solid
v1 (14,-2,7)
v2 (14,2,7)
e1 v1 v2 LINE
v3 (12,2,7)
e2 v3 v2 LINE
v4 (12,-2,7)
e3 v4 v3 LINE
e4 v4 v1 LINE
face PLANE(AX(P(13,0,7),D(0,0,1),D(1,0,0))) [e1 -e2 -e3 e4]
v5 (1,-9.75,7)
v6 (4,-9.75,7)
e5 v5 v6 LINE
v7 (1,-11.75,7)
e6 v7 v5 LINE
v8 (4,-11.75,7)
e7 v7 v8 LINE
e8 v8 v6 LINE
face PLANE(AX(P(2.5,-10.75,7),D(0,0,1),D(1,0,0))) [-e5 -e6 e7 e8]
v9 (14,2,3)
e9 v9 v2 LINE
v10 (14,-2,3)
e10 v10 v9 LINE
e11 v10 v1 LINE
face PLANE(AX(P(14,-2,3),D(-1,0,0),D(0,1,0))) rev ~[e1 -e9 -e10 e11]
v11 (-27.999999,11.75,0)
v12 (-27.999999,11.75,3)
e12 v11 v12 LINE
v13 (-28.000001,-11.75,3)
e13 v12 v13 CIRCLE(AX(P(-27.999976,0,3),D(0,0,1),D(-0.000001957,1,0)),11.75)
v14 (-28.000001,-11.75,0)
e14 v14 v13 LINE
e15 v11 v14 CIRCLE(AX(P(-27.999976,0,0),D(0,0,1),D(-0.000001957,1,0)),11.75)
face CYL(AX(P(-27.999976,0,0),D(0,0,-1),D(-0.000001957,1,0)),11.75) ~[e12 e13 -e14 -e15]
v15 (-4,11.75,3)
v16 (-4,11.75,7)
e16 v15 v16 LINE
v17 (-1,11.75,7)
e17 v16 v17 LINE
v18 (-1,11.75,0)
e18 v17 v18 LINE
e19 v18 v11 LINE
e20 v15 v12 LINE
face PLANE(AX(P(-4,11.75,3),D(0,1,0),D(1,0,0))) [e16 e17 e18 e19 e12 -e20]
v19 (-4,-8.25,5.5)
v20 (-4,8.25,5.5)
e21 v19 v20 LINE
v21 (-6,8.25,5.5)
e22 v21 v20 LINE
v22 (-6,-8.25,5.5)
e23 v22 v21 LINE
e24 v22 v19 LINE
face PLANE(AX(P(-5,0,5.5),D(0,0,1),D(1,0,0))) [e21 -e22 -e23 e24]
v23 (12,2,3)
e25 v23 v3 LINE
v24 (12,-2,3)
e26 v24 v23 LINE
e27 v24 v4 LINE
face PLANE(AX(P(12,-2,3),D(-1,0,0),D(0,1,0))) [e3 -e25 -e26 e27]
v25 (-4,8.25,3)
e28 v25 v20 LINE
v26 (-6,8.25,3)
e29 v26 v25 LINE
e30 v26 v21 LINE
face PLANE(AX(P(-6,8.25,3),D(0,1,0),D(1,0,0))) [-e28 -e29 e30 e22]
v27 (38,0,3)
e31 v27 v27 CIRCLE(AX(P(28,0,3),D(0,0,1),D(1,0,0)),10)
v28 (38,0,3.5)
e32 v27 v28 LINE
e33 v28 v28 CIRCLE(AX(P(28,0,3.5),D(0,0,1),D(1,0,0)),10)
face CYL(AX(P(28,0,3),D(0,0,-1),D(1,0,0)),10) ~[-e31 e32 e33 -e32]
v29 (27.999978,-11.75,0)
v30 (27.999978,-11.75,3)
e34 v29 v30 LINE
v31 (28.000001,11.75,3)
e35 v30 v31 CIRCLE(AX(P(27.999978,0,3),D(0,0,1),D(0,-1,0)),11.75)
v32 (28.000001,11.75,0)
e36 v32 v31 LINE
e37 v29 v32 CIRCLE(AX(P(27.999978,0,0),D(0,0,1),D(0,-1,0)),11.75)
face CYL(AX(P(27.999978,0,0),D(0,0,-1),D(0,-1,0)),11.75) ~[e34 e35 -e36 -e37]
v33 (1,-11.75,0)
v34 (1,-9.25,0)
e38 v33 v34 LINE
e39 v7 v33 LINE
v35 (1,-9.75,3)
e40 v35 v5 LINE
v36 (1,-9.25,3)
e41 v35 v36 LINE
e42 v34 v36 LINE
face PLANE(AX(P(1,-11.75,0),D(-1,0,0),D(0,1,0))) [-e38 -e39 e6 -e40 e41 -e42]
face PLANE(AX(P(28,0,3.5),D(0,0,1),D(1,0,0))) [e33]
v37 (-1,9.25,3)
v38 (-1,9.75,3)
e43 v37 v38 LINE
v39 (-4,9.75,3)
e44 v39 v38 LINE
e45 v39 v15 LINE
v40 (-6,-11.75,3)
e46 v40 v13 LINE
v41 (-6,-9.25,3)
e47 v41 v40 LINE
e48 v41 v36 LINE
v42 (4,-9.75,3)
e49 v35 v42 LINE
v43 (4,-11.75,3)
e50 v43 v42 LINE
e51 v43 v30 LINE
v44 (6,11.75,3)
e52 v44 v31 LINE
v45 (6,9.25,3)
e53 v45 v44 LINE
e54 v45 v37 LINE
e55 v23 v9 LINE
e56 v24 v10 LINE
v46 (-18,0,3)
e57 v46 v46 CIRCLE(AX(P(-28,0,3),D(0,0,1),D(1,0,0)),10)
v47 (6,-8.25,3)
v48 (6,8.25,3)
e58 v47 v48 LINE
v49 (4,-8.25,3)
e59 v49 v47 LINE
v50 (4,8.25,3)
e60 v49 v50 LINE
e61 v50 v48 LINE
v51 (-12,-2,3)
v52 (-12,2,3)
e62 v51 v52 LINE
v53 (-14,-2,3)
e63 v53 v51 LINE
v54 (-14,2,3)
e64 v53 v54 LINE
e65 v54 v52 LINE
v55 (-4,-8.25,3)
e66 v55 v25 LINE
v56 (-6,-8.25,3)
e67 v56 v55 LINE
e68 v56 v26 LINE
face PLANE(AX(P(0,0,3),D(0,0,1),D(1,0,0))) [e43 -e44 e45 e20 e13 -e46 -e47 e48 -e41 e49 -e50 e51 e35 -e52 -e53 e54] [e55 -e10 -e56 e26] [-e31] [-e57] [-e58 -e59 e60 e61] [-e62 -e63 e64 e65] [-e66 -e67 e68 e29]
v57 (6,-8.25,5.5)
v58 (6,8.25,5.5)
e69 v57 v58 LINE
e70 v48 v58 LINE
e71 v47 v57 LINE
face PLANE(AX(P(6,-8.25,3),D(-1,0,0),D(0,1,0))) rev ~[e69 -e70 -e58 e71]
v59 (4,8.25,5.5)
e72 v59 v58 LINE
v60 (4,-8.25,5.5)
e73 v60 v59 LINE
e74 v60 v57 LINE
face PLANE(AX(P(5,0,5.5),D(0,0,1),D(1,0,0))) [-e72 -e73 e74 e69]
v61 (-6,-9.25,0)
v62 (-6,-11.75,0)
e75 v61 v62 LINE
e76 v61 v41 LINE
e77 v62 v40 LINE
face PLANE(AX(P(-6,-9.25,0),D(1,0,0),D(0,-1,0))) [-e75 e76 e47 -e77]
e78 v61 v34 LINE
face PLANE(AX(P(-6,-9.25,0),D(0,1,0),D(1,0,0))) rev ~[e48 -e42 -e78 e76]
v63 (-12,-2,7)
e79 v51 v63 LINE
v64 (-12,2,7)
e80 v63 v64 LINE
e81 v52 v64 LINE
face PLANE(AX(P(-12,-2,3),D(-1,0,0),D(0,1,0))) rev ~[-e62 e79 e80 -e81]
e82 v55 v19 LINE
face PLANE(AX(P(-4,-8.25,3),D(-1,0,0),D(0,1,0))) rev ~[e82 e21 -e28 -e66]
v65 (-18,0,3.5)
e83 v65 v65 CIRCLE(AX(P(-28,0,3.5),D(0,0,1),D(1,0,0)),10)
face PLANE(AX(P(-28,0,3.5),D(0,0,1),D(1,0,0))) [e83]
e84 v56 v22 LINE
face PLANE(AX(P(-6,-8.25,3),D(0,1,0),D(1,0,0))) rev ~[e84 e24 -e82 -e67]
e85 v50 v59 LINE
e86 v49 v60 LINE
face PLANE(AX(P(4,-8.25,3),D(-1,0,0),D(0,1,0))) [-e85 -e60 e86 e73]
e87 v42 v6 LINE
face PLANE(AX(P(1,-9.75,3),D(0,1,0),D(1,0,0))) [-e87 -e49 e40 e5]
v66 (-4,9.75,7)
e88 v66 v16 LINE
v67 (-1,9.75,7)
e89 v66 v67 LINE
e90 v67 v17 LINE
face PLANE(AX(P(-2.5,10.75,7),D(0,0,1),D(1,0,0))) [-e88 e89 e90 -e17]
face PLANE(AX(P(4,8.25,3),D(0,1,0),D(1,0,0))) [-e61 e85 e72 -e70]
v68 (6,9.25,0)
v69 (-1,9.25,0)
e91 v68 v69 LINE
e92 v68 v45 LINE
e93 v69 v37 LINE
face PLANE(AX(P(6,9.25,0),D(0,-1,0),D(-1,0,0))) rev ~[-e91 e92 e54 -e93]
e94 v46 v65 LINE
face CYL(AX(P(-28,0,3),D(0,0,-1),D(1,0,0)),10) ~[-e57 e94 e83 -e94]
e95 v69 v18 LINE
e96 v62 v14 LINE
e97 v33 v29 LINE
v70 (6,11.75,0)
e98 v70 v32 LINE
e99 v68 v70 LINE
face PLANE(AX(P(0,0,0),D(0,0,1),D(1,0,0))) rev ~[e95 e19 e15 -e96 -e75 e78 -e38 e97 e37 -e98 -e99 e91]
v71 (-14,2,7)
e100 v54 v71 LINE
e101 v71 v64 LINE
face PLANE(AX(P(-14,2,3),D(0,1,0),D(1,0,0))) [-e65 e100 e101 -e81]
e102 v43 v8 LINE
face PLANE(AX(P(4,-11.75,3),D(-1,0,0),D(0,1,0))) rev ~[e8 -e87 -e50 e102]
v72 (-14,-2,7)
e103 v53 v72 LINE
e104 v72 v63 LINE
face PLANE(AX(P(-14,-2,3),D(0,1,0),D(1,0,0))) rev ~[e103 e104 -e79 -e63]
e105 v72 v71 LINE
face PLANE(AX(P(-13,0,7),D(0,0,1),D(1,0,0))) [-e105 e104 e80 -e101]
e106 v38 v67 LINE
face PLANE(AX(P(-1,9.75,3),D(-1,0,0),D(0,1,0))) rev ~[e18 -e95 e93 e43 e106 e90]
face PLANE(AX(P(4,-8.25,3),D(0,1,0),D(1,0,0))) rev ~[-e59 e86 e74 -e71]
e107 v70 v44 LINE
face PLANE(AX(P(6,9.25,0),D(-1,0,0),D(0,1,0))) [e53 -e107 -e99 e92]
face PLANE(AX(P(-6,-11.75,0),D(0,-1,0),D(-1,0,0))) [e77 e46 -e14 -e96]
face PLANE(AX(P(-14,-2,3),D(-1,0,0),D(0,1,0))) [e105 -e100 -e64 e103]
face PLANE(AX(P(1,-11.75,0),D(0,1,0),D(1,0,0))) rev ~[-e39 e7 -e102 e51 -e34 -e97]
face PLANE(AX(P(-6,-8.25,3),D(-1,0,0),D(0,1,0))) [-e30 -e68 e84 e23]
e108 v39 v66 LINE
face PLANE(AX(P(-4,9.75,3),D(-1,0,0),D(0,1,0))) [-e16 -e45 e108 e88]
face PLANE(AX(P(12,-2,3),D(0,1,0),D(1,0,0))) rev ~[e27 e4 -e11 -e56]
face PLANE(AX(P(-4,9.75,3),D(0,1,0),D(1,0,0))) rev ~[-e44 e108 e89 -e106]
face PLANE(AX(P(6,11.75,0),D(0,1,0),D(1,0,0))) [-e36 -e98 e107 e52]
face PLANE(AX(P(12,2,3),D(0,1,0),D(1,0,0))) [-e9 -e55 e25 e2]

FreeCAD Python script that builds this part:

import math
import FreeCAD as App
import Part
import Sketcher

V = App.Vector

doc = App.newDocument("Part")
body = doc.addObject("PartDesign::Body", "Body")

# Sketch on XY plane
sketch1 = body.newObject("Sketcher::SketchObject", "Sketch")
sketch1.AttachmentSupport = (doc.getObject("XY_Plane"), [""])
sketch1.MapMode = "FlatFace"
sketch1.addGeometry(Part.LineSegment(V(-6, -9.25, 0), V(1, -9.25, 0)), False)
sketch1.addGeometry(Part.LineSegment(V(1, -9.25, 0), V(1, -11.75, 0)), False)
sketch1.addGeometry(Part.LineSegment(V(1, -11.75, 0), V(27.999978, -11.75, 0)), False)
sketch1.addGeometry(Part.ArcOfCircle(Part.Circle(V(27.999978, 0, 0), V(0, 0, 1), 11.75), math.radians(-90), math.radians(89.999888)), False)
sketch1.addGeometry(Part.LineSegment(V(28.000001, 11.75, 0), V(6, 11.75, 0)), False)
sketch1.addGeometry(Part.LineSegment(V(6, 11.75, 0), V(6, 9.25, 0)), False)
sketch1.addGeometry(Part.LineSegment(V(6, 9.25, 0), V(-1, 9.25, 0)), False)
sketch1.addGeometry(Part.LineSegment(V(-1, 9.25, 0), V(-1, 11.75, 0)), False)
sketch1.addGeometry(Part.LineSegment(V(-1, 11.75, 0), V(-27.999999, 11.75, 0)), False)
sketch1.addGeometry(Part.ArcOfCircle(Part.Circle(V(-27.999976, 0, 0), V(0, 0, 1), 11.75), math.radians(90.000112), math.radians(269.999878)), False)
sketch1.addGeometry(Part.LineSegment(V(-28.000001, -11.75, 0), V(-6, -11.75, 0)), False)
sketch1.addGeometry(Part.LineSegment(V(-6, -11.75, 0), V(-6, -9.25, 0)), False)
sketch1.addConstraint(Sketcher.Constraint("Coincident", 0, 2, 1, 1))
sketch1.addConstraint(Sketcher.Constraint("Coincident", 1, 2, 2, 1))
sketch1.addConstraint(Sketcher.Constraint("Coincident", 2, 2, 3, 1))
sketch1.addConstraint(Sketcher.Constraint("Coincident", 3, 2, 4, 1))
sketch1.addConstraint(Sketcher.Constraint("Coincident", 4, 2, 5, 1))
sketch1.addConstraint(Sketcher.Constraint("Coincident", 5, 2, 6, 1))
sketch1.addConstraint(Sketcher.Constraint("Coincident", 6, 2, 7, 1))
sketch1.addConstraint(Sketcher.Constraint("Coincident", 7, 2, 8, 1))
sketch1.addConstraint(Sketcher.Constraint("Coincident", 8, 2, 9, 1))
sketch1.addConstraint(Sketcher.Constraint("Coincident", 9, 2, 10, 1))
sketch1.addConstraint(Sketcher.Constraint("Coincident", 10, 2, 11, 1))
sketch1.addConstraint(Sketcher.Constraint("Coincident", 11, 2, 0, 1))
sketch1.addConstraint(Sketcher.Constraint("Horizontal", 0))
sketch1.addConstraint(Sketcher.Constraint("Vertical", 1))
sketch1.addConstraint(Sketcher.Constraint("Horizontal", 2))
sketch1.addConstraint(Sketcher.Constraint("Horizontal", 4))
sketch1.addConstraint(Sketcher.Constraint("Vertical", 5))
sketch1.addConstraint(Sketcher.Constraint("Horizontal", 6))
sketch1.addConstraint(Sketcher.Constraint("Vertical", 7))
sketch1.addConstraint(Sketcher.Constraint("Horizontal", 8))
sketch1.addConstraint(Sketcher.Constraint("Horizontal", 10))
sketch1.addConstraint(Sketcher.Constraint("Vertical", 11))
sketch1.addConstraint(Sketcher.Constraint("PointOnObject", 3, 3, -1))
sketch1.addConstraint(Sketcher.Constraint("PointOnObject", 9, 3, -1))
sketch1.addConstraint(Sketcher.Constraint("DistanceX", 0, 1, 0, 2, 7.0))
sketch1.addConstraint(Sketcher.Constraint("DistanceX", 4, 2, 4, 1, 22.000001))
sketch1.addConstraint(Sketcher.Constraint("DistanceX", 6, 2, 6, 1, 7.0))
sketch1.addConstraint(Sketcher.Constraint("DistanceX", 8, 2, 8, 1, 26.999999))
sketch1.addConstraint(Sketcher.Constraint("DistanceX", 10, 1, 10, 2, 22.000001))
sketch1.addConstraint(Sketcher.Constraint("Radius", 3, 11.75))
sketch1.addConstraint(Sketcher.Constraint("Radius", 9, 11.75))
sketch1.addConstraint(Sketcher.Constraint("DistanceY", 1, 2, 1, 1, 2.5))
sketch1.addConstraint(Sketcher.Constraint("DistanceY", 5, 2, 5, 1, 2.5))
sketch1.addConstraint(Sketcher.Constraint("DistanceX", -1, 1, 0, 2, 1.0))
sketch1.addConstraint(Sketcher.Constraint("DistanceX", -1, 1, 3, 2, 28.000001))
sketch1.addConstraint(Sketcher.Constraint("DistanceX", 2, 1, 2, 2, 26.999978))
sketch1.addConstraint(Sketcher.Constraint("DistanceX", -1, 1, 3, 3, 27.999978))
sketch1.addConstraint(Sketcher.Constraint("DistanceX", 9, 3, -1, 1, 27.999976))
pad1 = body.newObject("PartDesign::Pad", "Pad")
pad1.Profile = sketch1
pad1.Length = 3

# Sketch on XY plane
sketch2 = body.newObject("Sketcher::SketchObject", "Sketch001")
sketch2.AttachmentSupport = (doc.getObject("XY_Plane"), [""])
sketch2.MapMode = "FlatFace"
sketch2.AttachmentOffset = App.Placement(V(0, 0, 3), App.Rotation())
sketch2.addGeometry(Part.LineSegment(V(-6, 8.25, 0), V(-6, -8.25, 0)), False)
sketch2.addGeometry(Part.LineSegment(V(-6, -8.25, 0), V(-4, -8.25, 0)), False)
sketch2.addGeometry(Part.LineSegment(V(-4, -8.25, 0), V(-4, 8.25, 0)), False)
sketch2.addGeometry(Part.LineSegment(V(-4, 8.25, 0), V(-6, 8.25, 0)), False)
sketch2.addGeometry(Part.LineSegment(V(4, 8.25, 0), V(4, -8.25, 0)), False)
sketch2.addGeometry(Part.LineSegment(V(4, -8.25, 0), V(6, -8.25, 0)), False)
sketch2.addGeometry(Part.LineSegment(V(6, -8.25, 0), V(6, 8.25, 0)), False)
sketch2.addGeometry(Part.LineSegment(V(6, 8.25, 0), V(4, 8.25, 0)), False)
sketch2.addConstraint(Sketcher.Constraint("Coincident", 0, 2, 1, 1))
sketch2.addConstraint(Sketcher.Constraint("Coincident", 1, 2, 2, 1))
sketch2.addConstraint(Sketcher.Constraint("Coincident", 2, 2, 3, 1))
sketch2.addConstraint(Sketcher.Constraint("Coincident", 3, 2, 0, 1))
sketch2.addConstraint(Sketcher.Constraint("Coincident", 4, 2, 5, 1))
sketch2.addConstraint(Sketcher.Constraint("Coincident", 5, 2, 6, 1))
sketch2.addConstraint(Sketcher.Constraint("Coincident", 6, 2, 7, 1))
sketch2.addConstraint(Sketcher.Constraint("Coincident", 7, 2, 4, 1))
sketch2.addConstraint(Sketcher.Constraint("Vertical", 0))
sketch2.addConstraint(Sketcher.Constraint("Horizontal", 1))
sketch2.addConstraint(Sketcher.Constraint("Vertical", 2))
sketch2.addConstraint(Sketcher.Constraint("Horizontal", 3))
sketch2.addConstraint(Sketcher.Constraint("Vertical", 4))
sketch2.addConstraint(Sketcher.Constraint("Horizontal", 5))
sketch2.addConstraint(Sketcher.Constraint("Vertical", 6))
sketch2.addConstraint(Sketcher.Constraint("Horizontal", 7))
sketch2.addConstraint(Sketcher.Constraint("Symmetric", 2, 2, 4, 2, -1, 1))
sketch2.addConstraint(Sketcher.Constraint("Symmetric", 0, 2, 6, 2, -1, 1))
sketch2.addConstraint(Sketcher.Constraint("Horizontal", 1, 2, 4, 2))
sketch2.addConstraint(Sketcher.Constraint("DistanceX", 1, 1, 1, 2, 2.0))
sketch2.addConstraint(Sketcher.Constraint("DistanceY", 0, 2, 0, 1, 16.5))
sketch2.addConstraint(Sketcher.Constraint("DistanceX", 0, 2, -1, 1, 6.0))
pad2 = body.newObject("PartDesign::Pad", "Pad001")
pad2.Profile = sketch2
pad2.Length = 2.5

# Sketch on XY plane
sketch3 = body.newObject("Sketcher::SketchObject", "Sketch002")
sketch3.AttachmentSupport = (doc.getObject("XY_Plane"), [""])
sketch3.MapMode = "FlatFace"
sketch3.AttachmentOffset = App.Placement(V(0, 0, 3), App.Rotation())
sketch3.addGeometry(Part.LineSegment(V(-14, 2, 0), V(-14, -2, 0)), False)
sketch3.addGeometry(Part.LineSegment(V(-14, -2, 0), V(-12, -2, 0)), False)
sketch3.addGeometry(Part.LineSegment(V(-12, -2, 0), V(-12, 2, 0)), False)
sketch3.addGeometry(Part.LineSegment(V(-12, 2, 0), V(-14, 2, 0)), False)
sketch3.addGeometry(Part.LineSegment(V(12, 2, 0), V(12, -2, 0)), False)
sketch3.addGeometry(Part.LineSegment(V(12, -2, 0), V(14, -2, 0)), False)
sketch3.addGeometry(Part.LineSegment(V(14, -2, 0), V(14, 2, 0)), False)
sketch3.addGeometry(Part.LineSegment(V(14, 2, 0), V(12, 2, 0)), False)
sketch3.addGeometry(Part.LineSegment(V(-4, 11.75, 0), V(-4, 9.75, 0)), False)
sketch3.addGeometry(Part.LineSegment(V(-4, 9.75, 0), V(-1, 9.75, 0)), False)
sketch3.addGeometry(Part.LineSegment(V(-1, 9.75, 0), V(-1, 11.75, 0)), False)
sketch3.addGeometry(Part.LineSegment(V(-1, 11.75, 0), V(-4, 11.75, 0)), False)
sketch3.addGeometry(Part.LineSegment(V(1, -9.75, 0), V(1, -11.75, 0)), False)
sketch3.addGeometry(Part.LineSegment(V(1, -11.75, 0), V(4, -11.75, 0)), False)
sketch3.addGeometry(Part.LineSegment(V(4, -11.75, 0), V(4, -9.75, 0)), False)
sketch3.addGeometry(Part.LineSegment(V(4, -9.75, 0), V(1, -9.75, 0)), False)
sketch3.addConstraint(Sketcher.Constraint("Coincident", 0, 2, 1, 1))
sketch3.addConstraint(Sketcher.Constraint("Coincident", 1, 2, 2, 1))
sketch3.addConstraint(Sketcher.Constraint("Coincident", 2, 2, 3, 1))
sketch3.addConstraint(Sketcher.Constraint("Coincident", 3, 2, 0, 1))
sketch3.addConstraint(Sketcher.Constraint("Coincident", 4, 2, 5, 1))
sketch3.addConstraint(Sketcher.Constraint("Coincident", 5, 2, 6, 1))
sketch3.addConstraint(Sketcher.Constraint("Coincident", 6, 2, 7, 1))
sketch3.addConstraint(Sketcher.Constraint("Coincident", 7, 2, 4, 1))
sketch3.addConstraint(Sketcher.Constraint("Coincident", 8, 2, 9, 1))
sketch3.addConstraint(Sketcher.Constraint("Coincident", 9, 2, 10, 1))
sketch3.addConstraint(Sketcher.Constraint("Coincident", 10, 2, 11, 1))
sketch3.addConstraint(Sketcher.Constraint("Coincident", 11, 2, 8, 1))
sketch3.addConstraint(Sketcher.Constraint("Coincident", 12, 2, 13, 1))
sketch3.addConstraint(Sketcher.Constraint("Coincident", 13, 2, 14, 1))
sketch3.addConstraint(Sketcher.Constraint("Coincident", 14, 2, 15, 1))
sketch3.addConstraint(Sketcher.Constraint("Coincident", 15, 2, 12, 1))
sketch3.addConstraint(Sketcher.Constraint("Vertical", 0))
sketch3.addConstraint(Sketcher.Constraint("Horizontal", 1))
sketch3.addConstraint(Sketcher.Constraint("Vertical", 2))
sketch3.addConstraint(Sketcher.Constraint("Horizontal", 3))
sketch3.addConstraint(Sketcher.Constraint("Vertical", 4))
sketch3.addConstraint(Sketcher.Constraint("Horizontal", 5))
sketch3.addConstraint(Sketcher.Constraint("Vertical", 6))
sketch3.addConstraint(Sketcher.Constraint("Horizontal", 7))
sketch3.addConstraint(Sketcher.Constraint("Vertical", 8))
sketch3.addConstraint(Sketcher.Constraint("Horizontal", 9))
sketch3.addConstraint(Sketcher.Constraint("Vertical", 10))
sketch3.addConstraint(Sketcher.Constraint("Horizontal", 11))
sketch3.addConstraint(Sketcher.Constraint("Vertical", 12))
sketch3.addConstraint(Sketcher.Constraint("Horizontal", 13))
sketch3.addConstraint(Sketcher.Constraint("Vertical", 14))
sketch3.addConstraint(Sketcher.Constraint("Horizontal", 15))
sketch3.addConstraint(Sketcher.Constraint("Symmetric", 2, 2, 4, 2, -1, 1))
sketch3.addConstraint(Sketcher.Constraint("Symmetric", 0, 2, 6, 2, -1, 1))
sketch3.addConstraint(Sketcher.Constraint("Symmetric", 10, 2, 12, 2, -1, 1))
sketch3.addConstraint(Sketcher.Constraint("Symmetric", 8, 2, 14, 2, -1, 1))
sketch3.addConstraint(Sketcher.Constraint("Horizontal", 1, 2, 4, 2))
sketch3.addConstraint(Sketcher.Constraint("Equal", 7, 8))
sketch3.addConstraint(Sketcher.Constraint("DistanceX", 1, 1, 1, 2, 2.0))
sketch3.addConstraint(Sketcher.Constraint("DistanceX", 9, 1, 9, 2, 3.0))
sketch3.addConstraint(Sketcher.Constraint("DistanceY", 0, 2, 0, 1, 4.0))
sketch3.addConstraint(Sketcher.Constraint("DistanceX", 0, 2, -1, 1, 14.0))
sketch3.addConstraint(Sketcher.Constraint("DistanceX", 8, 2, -1, 1, 4.0))
sketch3.addConstraint(Sketcher.Constraint("DistanceY", -1, 1, 8, 2, 9.75))
pad3 = body.newObject("PartDesign::Pad", "Pad002")
pad3.Profile = sketch3
pad3.Length = 4

# Sketch on XY plane
sketch4 = body.newObject("Sketcher::SketchObject", "Sketch003")
sketch4.AttachmentSupport = (doc.getObject("XY_Plane"), [""])
sketch4.MapMode = "FlatFace"
sketch4.AttachmentOffset = App.Placement(V(0, 0, 3), App.Rotation())
sketch4.addGeometry(Part.Circle(V(-28, 0, 0), V(0, 0, 1), 10), False)
sketch4.addGeometry(Part.Circle(V(28, 0, 0), V(0, 0, 1), 10), False)
sketch4.addConstraint(Sketcher.Constraint("Equal", 0, 1))
sketch4.addConstraint(Sketcher.Constraint("Symmetric", 0, 3, 1, 3, -1, 1))
sketch4.addConstraint(Sketcher.Constraint("PointOnObject", 0, 3, -1))
sketch4.addConstraint(Sketcher.Constraint("Diameter", 0, 20.0))
sketch4.addConstraint(Sketcher.Constraint("DistanceX", 0, 3, -1, 1, 28.0))
pad4 = body.newObject("PartDesign::Pad", "Pad003")
pad4.Profile = sketch4
pad4.Length = 0.5

doc.recompute()
